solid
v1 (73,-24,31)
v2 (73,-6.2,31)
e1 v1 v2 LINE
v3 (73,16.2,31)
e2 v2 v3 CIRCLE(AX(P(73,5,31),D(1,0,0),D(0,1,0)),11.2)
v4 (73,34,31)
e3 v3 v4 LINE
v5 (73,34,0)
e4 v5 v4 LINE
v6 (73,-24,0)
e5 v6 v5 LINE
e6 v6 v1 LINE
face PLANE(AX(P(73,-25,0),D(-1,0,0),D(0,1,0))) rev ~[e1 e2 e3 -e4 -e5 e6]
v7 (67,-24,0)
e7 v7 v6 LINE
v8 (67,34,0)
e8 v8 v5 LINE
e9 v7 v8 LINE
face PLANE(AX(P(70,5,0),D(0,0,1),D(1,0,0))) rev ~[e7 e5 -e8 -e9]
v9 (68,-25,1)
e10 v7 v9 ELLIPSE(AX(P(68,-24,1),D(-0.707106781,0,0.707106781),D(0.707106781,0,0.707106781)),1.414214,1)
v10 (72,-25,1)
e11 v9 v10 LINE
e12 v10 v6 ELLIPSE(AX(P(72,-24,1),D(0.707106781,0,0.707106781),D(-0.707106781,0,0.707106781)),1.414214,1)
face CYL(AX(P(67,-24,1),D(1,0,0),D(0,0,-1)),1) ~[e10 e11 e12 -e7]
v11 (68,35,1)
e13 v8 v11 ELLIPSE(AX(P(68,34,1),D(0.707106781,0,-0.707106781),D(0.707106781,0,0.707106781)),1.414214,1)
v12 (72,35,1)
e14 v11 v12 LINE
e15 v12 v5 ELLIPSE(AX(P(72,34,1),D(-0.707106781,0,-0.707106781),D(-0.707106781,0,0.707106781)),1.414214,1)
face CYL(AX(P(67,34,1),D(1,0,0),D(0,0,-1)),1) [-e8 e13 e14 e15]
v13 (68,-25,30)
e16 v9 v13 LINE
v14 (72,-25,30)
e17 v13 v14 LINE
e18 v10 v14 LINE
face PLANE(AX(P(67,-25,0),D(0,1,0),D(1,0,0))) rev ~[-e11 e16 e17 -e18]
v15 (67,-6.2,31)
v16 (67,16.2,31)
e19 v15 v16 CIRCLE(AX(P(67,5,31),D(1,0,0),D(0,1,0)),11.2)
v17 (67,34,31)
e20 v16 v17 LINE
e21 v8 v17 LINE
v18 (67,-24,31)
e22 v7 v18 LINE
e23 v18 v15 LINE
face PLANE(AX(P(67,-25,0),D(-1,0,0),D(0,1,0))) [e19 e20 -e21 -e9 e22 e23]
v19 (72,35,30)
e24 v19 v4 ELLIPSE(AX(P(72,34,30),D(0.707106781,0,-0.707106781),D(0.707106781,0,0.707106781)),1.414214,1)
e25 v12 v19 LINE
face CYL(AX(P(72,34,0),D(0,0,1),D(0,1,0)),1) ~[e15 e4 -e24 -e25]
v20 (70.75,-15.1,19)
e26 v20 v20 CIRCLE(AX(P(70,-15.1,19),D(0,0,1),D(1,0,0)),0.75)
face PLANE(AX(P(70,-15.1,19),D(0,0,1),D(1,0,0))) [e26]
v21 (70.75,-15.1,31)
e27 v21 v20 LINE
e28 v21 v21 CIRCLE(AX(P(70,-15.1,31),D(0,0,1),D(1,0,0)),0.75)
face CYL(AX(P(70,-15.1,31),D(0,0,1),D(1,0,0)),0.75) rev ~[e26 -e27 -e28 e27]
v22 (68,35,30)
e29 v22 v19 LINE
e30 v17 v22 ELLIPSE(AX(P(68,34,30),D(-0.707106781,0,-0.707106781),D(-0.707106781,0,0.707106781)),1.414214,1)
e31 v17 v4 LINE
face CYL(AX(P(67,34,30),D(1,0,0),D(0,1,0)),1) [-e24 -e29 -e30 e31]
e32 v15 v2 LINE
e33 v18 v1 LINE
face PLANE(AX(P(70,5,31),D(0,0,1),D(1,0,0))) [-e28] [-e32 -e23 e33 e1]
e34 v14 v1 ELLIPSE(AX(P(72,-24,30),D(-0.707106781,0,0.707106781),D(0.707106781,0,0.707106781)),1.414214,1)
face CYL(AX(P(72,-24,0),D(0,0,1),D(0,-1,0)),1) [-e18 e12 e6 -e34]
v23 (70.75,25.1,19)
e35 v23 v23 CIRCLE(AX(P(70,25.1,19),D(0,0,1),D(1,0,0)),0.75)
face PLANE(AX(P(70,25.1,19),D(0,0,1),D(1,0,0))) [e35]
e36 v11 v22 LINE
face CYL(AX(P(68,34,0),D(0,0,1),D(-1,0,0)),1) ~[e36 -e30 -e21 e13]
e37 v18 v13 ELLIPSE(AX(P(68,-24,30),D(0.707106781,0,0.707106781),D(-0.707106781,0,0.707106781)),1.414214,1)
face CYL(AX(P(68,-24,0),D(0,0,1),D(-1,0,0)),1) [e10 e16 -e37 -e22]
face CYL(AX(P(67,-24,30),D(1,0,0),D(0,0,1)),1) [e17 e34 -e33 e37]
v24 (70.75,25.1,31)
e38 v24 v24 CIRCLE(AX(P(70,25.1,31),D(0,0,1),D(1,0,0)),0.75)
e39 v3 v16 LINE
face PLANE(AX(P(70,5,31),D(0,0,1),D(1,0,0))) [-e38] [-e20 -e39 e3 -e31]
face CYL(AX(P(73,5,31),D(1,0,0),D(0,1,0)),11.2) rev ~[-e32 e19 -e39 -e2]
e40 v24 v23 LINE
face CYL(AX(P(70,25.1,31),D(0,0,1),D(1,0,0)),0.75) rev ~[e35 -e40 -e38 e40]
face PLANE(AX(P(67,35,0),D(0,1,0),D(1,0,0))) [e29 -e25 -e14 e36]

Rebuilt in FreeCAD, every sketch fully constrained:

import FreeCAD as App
import Part
import Sketcher
Q = App.Units.Quantity


def edges_at(feature, points):
    """Names of the edges that pass closest to the given points."""
    edges = feature.Shape.Edges
    near = lambda p: min(range(len(edges)), key=lambda i: edges[i].distToShape(Part.Vertex(*p))[0])
    return sorted({f"Edge{near(p) + 1}" for p in points})


def add_polygon(sketch, points):
    """Adds a closed chain of lines whose ends are joined by coincident constraints."""
    first, n = sketch.GeometryCount, len(points)
    for a, b in zip(points, points[1:] + points[:1]):
        sketch.addGeometry(Part.LineSegment(App.Vector(*a, 0), App.Vector(*b, 0)), False)
    for i in range(n):
        sketch.addConstraint(Sketcher.Constraint("Coincident", first + i, 2, first + (i + 1) % n, 1))

doc = App.newDocument("Part")
body = doc.addObject("PartDesign::Body", "Body")

sketch1 = body.newObject("Sketcher::SketchObject", "Sketch")
sketch1.AttachmentSupport = (doc.getObject("XY_Plane"), [""])
sketch1.MapMode = "FlatFace"
add_polygon(sketch1, [(67, 35), (67, -25), (73, -25), (73, 35)])
sketch1.addConstraint([
    Sketcher.Constraint("Vertical", 0),
    Sketcher.Constraint("Horizontal", 1),
    Sketcher.Constraint("Vertical", 2),
    Sketcher.Constraint("Horizontal", 3),
    Sketcher.Constraint("DistanceX", 1, 1, 1, 2, Q("6 mm")),
    Sketcher.Constraint("DistanceY", 0, 2, 0, 1, Q("60 mm")),
    Sketcher.Constraint("DistanceX", -1, 1, 0, 2, Q("67 mm")),
    Sketcher.Constraint("DistanceY", 0, 2, -1, 1, Q("25 mm")),
])
pad1 = body.newObject("PartDesign::Pad", "Pad")
pad1.Profile = sketch1
pad1.Length = 31

sketch2 = body.newObject("Sketcher::SketchObject", "Sketch001")
sketch2.AttachmentSupport = (doc.getObject("YZ_Plane"), [""])
sketch2.MapMode = "FlatFace"
sketch2.AttachmentOffset = App.Placement(App.Vector(0, 0, 73), App.Rotation())
sketch2.addGeometry(Part.Circle(App.Vector(5, 31, 0), App.Vector(0, 0, 1), 11.2), False)
sketch2.addConstraint([
    Sketcher.Constraint("Diameter", 0, Q("22.4 mm")),
    Sketcher.Constraint("DistanceX", -1, 1, 0, 3, Q("5 mm")),
    Sketcher.Constraint("DistanceY", -1, 1, 0, 3, Q("31 mm")),
])
pocket1 = body.newObject("PartDesign::Pocket", "Pocket")
pocket1.Profile = sketch2
pocket1.Type = "ThroughAll"
doc.recompute()

fillet = body.newObject("PartDesign::Fillet", "Fillet")
fillet.Base = (pocket1, edges_at(pocket1, [
    (73, -25, 15.5),
    (67, -25, 15.5),
    (70, -25, 0),
    (70, -25, 31),
    (67, 35, 15.5),
    (73, 35, 15.5),
    (70, 35, 0),
    (70, 35, 31),
]))
fillet.Radius = 1

sketch3 = body.newObject("Sketcher::SketchObject", "Sketch002")
sketch3.AttachmentSupport = (doc.getObject("XY_Plane"), [""])
sketch3.MapMode = "FlatFace"
sketch3.AttachmentOffset = App.Placement(App.Vector(0, 0, 31), App.Rotation())
sketch3.addGeometry([
    Part.Circle(App.Vector(70, 25.1, 0), App.Vector(0, 0, 1), 0.75),
    Part.Circle(App.Vector(70, -15.1, 0), App.Vector(0, 0, 1), 0.75),
], False)
sketch3.addConstraint([
    Sketcher.Constraint("Equal", 0, 1),
    Sketcher.Constraint("Vertical", 0, 3, 1, 3),
    Sketcher.Constraint("Diameter", 0, Q("1.5 mm")),
    Sketcher.Constraint("DistanceX", -1, 1, 0, 3, Q("70 mm")),
    Sketcher.Constraint("DistanceY", -1, 1, 0, 3, Q("25.1 mm")),
    Sketcher.Constraint("DistanceY", 1, 3, -1, 1, Q("15.1 mm")),
])
pocket2 = body.newObject("PartDesign::Pocket", "Pocket001")
pocket2.Profile = sketch3
pocket2.Length = 12

doc.recompute()
